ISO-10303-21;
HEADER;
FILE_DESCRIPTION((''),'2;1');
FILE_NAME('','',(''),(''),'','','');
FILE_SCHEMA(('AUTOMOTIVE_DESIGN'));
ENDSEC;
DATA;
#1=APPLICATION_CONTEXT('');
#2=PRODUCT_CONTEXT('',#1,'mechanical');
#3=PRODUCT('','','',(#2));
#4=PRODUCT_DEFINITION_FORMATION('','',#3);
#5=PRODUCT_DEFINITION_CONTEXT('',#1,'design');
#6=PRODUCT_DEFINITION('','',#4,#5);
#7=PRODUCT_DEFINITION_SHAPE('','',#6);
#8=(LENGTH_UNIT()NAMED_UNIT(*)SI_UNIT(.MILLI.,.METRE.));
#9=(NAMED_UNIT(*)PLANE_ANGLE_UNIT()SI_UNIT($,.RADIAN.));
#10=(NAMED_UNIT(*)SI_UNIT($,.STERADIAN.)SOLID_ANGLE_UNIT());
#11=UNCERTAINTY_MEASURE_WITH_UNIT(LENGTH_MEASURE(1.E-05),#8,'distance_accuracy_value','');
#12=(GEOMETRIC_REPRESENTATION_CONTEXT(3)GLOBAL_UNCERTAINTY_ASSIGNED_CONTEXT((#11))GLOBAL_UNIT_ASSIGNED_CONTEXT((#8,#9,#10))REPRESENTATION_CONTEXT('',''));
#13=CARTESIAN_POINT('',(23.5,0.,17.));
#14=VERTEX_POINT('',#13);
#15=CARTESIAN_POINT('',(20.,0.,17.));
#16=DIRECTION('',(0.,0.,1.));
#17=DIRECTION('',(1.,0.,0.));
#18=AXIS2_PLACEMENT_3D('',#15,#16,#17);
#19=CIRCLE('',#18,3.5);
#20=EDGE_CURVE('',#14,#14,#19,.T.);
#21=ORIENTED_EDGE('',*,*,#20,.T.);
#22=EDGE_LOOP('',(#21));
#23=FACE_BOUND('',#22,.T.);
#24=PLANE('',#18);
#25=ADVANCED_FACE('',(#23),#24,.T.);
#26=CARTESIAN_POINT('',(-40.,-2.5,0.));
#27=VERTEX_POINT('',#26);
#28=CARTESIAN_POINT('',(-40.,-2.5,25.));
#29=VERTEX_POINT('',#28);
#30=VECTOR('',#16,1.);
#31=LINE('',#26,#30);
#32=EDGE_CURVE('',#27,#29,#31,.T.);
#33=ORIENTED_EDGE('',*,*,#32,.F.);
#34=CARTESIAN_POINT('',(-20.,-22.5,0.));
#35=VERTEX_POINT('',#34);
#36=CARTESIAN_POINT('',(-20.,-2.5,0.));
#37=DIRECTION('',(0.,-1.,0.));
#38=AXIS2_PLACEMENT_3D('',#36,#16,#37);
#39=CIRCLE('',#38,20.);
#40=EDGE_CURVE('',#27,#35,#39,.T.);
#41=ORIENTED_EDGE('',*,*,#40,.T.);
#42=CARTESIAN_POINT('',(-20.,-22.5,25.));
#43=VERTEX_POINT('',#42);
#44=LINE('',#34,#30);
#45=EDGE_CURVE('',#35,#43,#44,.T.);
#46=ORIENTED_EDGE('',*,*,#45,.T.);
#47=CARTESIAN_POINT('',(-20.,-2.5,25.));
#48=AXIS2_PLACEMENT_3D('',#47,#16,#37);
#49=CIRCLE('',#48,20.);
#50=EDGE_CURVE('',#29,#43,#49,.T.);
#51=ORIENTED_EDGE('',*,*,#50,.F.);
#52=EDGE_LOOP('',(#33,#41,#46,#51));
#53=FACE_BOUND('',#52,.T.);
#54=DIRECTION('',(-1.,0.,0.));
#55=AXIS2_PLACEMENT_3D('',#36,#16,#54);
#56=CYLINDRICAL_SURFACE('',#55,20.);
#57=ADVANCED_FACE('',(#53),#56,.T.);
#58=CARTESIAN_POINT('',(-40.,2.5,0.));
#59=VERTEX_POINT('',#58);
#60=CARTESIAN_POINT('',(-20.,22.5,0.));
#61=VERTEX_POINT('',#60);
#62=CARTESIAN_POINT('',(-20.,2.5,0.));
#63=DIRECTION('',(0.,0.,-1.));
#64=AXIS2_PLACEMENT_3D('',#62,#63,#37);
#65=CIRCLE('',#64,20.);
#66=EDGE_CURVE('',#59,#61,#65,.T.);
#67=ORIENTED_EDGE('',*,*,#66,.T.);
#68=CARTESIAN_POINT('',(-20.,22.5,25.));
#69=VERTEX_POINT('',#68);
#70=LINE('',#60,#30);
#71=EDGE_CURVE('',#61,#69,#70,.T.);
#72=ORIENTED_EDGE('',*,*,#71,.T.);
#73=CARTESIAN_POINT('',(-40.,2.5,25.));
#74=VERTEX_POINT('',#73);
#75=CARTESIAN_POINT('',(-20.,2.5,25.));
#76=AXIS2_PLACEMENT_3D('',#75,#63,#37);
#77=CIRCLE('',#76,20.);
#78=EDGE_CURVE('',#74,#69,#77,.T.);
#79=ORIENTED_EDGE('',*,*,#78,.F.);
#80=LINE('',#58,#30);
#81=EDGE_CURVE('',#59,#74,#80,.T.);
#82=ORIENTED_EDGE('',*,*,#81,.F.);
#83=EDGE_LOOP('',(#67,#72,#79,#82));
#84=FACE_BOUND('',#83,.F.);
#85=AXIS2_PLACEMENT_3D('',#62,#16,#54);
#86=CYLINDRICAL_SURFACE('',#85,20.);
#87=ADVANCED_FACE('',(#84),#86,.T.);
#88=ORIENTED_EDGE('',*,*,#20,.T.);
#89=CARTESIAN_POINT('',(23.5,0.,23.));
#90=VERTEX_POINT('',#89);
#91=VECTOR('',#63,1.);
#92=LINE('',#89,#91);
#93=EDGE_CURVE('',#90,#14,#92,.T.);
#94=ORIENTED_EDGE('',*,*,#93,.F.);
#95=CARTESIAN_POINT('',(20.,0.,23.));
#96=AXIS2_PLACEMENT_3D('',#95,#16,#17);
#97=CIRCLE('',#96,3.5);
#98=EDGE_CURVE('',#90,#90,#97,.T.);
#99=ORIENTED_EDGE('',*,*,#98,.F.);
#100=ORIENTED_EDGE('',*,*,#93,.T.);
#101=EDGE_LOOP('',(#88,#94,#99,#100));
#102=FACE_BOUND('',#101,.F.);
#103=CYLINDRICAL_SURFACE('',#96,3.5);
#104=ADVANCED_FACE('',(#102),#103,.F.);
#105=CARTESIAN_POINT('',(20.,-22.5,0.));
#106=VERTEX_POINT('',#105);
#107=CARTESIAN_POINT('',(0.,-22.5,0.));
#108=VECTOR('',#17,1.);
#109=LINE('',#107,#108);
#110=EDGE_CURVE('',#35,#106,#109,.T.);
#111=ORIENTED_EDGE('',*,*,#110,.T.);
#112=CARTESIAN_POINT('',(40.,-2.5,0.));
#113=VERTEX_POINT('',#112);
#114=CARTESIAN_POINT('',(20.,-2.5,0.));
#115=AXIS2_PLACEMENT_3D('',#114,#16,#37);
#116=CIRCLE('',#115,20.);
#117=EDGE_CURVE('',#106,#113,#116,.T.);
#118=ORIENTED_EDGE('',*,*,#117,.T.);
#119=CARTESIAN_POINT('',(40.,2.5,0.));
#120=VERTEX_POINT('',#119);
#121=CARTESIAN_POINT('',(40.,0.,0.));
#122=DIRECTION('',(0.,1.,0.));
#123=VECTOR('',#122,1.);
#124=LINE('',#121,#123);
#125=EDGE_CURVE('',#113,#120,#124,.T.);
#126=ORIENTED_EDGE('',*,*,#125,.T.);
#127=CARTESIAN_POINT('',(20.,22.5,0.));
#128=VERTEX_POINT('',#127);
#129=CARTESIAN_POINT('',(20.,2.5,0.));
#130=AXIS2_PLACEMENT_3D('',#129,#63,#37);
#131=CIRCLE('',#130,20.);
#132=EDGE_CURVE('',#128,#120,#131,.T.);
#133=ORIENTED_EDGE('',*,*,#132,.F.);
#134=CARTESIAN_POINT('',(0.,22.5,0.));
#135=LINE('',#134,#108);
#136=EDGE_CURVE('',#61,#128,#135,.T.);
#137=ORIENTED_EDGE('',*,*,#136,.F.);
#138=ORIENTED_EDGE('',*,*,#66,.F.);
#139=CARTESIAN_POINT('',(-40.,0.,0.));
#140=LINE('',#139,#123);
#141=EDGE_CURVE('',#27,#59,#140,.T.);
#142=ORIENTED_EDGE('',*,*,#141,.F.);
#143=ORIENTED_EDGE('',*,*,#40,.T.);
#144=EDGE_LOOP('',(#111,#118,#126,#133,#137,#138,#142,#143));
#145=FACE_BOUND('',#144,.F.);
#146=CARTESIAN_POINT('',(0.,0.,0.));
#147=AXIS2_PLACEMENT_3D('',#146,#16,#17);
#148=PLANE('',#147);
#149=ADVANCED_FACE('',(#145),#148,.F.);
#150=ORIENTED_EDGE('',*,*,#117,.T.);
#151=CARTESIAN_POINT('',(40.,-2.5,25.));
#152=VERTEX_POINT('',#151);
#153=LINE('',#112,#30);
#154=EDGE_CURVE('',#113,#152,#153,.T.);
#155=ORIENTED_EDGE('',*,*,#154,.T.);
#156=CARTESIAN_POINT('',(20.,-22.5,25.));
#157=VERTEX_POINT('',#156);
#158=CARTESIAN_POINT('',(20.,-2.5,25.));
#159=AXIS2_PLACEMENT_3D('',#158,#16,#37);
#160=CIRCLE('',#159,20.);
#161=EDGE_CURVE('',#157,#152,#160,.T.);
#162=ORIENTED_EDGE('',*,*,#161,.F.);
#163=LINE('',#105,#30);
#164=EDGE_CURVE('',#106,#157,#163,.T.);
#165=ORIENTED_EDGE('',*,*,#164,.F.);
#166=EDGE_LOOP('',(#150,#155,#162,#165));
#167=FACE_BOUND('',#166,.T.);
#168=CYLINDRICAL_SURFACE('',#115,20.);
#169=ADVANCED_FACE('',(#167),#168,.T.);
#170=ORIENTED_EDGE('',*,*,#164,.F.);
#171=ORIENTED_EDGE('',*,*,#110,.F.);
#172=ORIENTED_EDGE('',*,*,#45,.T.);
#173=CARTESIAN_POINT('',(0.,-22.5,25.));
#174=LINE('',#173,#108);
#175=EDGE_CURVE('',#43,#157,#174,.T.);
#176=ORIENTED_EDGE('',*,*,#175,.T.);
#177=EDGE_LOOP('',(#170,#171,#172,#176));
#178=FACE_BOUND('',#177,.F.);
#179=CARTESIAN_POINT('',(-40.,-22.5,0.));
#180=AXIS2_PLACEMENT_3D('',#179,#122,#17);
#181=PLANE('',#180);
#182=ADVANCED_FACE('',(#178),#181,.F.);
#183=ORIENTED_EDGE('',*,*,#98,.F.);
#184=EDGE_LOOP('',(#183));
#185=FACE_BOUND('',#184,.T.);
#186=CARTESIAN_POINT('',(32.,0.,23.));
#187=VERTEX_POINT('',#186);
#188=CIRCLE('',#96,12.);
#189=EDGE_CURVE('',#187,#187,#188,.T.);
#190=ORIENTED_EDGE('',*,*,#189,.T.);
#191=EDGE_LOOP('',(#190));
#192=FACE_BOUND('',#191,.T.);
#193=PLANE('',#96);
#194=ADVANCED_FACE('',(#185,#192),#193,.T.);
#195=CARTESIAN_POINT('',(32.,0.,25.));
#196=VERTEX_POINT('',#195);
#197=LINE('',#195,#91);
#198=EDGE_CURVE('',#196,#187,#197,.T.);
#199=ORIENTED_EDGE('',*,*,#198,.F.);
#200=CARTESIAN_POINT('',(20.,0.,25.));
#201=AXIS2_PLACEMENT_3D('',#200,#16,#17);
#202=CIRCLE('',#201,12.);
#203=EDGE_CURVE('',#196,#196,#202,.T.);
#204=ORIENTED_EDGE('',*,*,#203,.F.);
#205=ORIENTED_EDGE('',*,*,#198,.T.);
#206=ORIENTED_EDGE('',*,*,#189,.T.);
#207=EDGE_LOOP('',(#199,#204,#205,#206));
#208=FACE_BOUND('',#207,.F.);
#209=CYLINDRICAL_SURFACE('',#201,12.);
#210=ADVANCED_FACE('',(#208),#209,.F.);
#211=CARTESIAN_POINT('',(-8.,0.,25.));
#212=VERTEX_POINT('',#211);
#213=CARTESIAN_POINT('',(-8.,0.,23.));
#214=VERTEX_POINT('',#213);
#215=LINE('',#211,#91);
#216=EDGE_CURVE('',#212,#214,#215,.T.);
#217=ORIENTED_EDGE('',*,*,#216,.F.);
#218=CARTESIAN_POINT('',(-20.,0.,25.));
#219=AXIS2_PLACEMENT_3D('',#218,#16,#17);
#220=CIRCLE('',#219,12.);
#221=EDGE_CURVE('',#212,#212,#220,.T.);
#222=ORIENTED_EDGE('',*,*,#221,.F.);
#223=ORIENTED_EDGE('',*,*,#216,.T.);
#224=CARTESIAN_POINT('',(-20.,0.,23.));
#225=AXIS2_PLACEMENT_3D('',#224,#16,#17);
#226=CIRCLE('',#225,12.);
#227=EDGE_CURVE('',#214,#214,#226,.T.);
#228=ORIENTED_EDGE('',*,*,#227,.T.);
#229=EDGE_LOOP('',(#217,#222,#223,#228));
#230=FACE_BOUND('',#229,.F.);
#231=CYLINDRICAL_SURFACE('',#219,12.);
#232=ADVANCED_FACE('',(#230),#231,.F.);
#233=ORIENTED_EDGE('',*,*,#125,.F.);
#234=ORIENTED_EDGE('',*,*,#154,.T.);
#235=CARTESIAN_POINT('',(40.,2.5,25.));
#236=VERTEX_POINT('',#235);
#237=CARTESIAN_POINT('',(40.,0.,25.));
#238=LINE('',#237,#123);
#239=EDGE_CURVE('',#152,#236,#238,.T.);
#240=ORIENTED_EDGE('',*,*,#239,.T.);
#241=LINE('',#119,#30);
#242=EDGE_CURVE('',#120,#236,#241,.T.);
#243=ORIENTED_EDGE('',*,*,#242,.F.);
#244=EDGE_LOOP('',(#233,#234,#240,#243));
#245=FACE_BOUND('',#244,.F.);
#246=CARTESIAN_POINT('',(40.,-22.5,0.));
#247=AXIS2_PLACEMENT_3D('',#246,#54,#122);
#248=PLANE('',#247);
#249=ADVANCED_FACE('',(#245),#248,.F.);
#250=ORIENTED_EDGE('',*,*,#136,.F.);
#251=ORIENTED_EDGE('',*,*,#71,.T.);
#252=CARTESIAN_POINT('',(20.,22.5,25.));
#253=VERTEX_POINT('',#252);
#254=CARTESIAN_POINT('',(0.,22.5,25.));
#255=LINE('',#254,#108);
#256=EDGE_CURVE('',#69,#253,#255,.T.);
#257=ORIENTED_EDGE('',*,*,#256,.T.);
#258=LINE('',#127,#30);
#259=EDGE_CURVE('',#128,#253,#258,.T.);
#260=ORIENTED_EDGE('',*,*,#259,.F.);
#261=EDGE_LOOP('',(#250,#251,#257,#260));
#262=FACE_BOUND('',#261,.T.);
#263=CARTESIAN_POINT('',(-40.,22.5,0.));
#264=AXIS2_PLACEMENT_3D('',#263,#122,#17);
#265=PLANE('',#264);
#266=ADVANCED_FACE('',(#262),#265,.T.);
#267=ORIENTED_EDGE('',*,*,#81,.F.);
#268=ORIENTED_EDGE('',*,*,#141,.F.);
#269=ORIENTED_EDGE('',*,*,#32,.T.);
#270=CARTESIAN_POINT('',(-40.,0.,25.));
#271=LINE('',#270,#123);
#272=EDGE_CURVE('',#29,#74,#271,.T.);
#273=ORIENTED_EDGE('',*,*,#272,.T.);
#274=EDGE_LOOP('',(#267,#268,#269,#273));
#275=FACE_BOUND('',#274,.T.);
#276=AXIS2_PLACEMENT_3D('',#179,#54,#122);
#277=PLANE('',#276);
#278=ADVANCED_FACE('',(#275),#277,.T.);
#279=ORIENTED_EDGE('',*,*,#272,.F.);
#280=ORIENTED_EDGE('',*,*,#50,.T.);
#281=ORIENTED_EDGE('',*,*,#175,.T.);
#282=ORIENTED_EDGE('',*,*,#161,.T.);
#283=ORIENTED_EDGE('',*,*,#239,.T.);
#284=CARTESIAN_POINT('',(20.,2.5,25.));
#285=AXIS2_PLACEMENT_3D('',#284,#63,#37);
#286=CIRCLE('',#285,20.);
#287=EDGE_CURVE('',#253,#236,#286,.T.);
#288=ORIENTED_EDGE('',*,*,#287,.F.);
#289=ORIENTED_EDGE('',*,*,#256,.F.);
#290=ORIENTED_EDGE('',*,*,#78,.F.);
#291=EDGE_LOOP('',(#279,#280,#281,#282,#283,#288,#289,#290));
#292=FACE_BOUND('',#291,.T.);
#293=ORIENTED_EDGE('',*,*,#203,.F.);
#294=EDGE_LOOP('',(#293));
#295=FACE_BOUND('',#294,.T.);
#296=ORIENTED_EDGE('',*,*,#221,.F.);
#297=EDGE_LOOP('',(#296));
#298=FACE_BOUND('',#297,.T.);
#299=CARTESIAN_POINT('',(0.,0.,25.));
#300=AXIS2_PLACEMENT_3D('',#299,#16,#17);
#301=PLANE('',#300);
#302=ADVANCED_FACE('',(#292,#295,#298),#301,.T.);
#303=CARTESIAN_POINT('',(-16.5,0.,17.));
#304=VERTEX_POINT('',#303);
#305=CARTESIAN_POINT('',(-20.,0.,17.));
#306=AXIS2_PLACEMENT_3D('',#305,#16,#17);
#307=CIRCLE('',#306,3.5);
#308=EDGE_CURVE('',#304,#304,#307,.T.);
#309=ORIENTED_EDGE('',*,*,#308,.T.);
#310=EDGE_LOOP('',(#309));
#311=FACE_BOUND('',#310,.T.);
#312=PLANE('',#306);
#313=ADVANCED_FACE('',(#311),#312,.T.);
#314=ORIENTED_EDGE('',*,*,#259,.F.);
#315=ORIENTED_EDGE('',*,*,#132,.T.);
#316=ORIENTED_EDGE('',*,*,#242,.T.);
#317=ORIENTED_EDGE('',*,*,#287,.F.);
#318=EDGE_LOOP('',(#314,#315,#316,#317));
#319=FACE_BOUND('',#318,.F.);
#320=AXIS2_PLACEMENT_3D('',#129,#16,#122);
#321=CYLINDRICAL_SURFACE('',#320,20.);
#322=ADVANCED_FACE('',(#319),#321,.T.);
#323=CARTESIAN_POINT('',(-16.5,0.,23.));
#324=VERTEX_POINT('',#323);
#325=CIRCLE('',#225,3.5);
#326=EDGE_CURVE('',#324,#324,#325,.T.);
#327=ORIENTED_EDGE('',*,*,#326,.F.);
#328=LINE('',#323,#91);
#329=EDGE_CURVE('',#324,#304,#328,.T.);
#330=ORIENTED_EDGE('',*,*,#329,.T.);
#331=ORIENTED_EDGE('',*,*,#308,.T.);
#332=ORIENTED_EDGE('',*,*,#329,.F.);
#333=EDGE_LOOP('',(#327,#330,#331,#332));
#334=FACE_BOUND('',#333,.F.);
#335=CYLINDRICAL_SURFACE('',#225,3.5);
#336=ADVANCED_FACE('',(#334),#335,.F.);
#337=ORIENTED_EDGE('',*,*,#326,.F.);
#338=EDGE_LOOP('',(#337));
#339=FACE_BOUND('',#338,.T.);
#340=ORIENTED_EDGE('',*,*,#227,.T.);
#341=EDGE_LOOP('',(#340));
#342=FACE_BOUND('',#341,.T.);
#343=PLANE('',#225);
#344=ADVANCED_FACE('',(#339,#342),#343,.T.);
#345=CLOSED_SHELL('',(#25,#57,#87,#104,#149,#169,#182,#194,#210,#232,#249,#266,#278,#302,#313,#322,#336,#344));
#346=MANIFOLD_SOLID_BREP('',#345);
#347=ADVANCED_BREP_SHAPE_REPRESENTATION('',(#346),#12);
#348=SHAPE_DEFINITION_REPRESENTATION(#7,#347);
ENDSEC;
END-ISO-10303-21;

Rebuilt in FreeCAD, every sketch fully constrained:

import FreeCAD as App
import Part
import Sketcher

V = App.Vector
Q = App.Units.Quantity


def edges_at(feature, points):
    """Names of the edges that pass closest to the given points."""
    edges = feature.Shape.Edges
    near = lambda p: min(range(len(edges)), key=lambda i: edges[i].distToShape(Part.Vertex(*p))[0])
    return sorted({f"Edge{near(p) + 1}" for p in points})

doc = App.newDocument("Part")
body = doc.addObject("PartDesign::Body", "Body")

# Sketch on XY plane
sketch1 = body.newObject("Sketcher::SketchObject", "Sketch")
sketch1.AttachmentSupport = (doc.getObject("XY_Plane"), [""])
sketch1.MapMode = "FlatFace"
sketch1.addGeometry([
    Part.LineSegment(V(-40, 22.5, 0), V(-40, -22.5, 0)),
    Part.LineSegment(V(-40, -22.5, 0), V(40, -22.5, 0)),
    Part.LineSegment(V(40, -22.5, 0), V(40, 22.5, 0)),
    Part.LineSegment(V(40, 22.5, 0), V(-40, 22.5, 0)),
], False)
sketch1.addConstraint([
    Sketcher.Constraint("Coincident", 0, 2, 1, 1),
    Sketcher.Constraint("Coincident", 1, 2, 2, 1),
    Sketcher.Constraint("Coincident", 2, 2, 3, 1),
    Sketcher.Constraint("Coincident", 3, 2, 0, 1),
    Sketcher.Constraint("Vertical", 0),
    Sketcher.Constraint("Horizontal", 1),
    Sketcher.Constraint("Vertical", 2),
    Sketcher.Constraint("Horizontal", 3),
    Sketcher.Constraint("Symmetric", 0, 2, 2, 2, -1, 1),
    Sketcher.Constraint("DistanceX", 1, 1, 1, 2, Q("80 mm")),
    Sketcher.Constraint("DistanceY", 0, 2, 0, 1, Q("45 mm")),
])
pad1 = body.newObject("PartDesign::Pad", "Pad")
pad1.Profile = sketch1
pad1.Length = 25

# Sketch on XY plane
sketch2 = body.newObject("Sketcher::SketchObject", "Sketch001")
sketch2.AttachmentSupport = (doc.getObject("XY_Plane"), [""])
sketch2.MapMode = "FlatFace"
sketch2.AttachmentOffset = App.Placement(V(0, 0, 25), App.Rotation())
sketch2.addGeometry([
    Part.Circle(V(-20, 0, 0), V(0, 0, 1), 12),
    Part.Circle(V(20, 0, 0), V(0, 0, 1), 12),
], False)
sketch2.addConstraint([
    Sketcher.Constraint("Equal", 0, 1),
    Sketcher.Constraint("Symmetric", 0, 3, 1, 3, -1, 1),
    Sketcher.Constraint("PointOnObject", 0, 3, -1),
    Sketcher.Constraint("Diameter", 0, Q("24 mm")),
    Sketcher.Constraint("DistanceX", 0, 3, -1, 1, Q("20 mm")),
])
pocket1 = body.newObject("PartDesign::Pocket", "Pocket")
pocket1.Profile = sketch2
pocket1.Length = 2

# Sketch on XY plane
sketch3 = body.newObject("Sketcher::SketchObject", "Sketch002")
sketch3.AttachmentSupport = (doc.getObject("XY_Plane"), [""])
sketch3.MapMode = "FlatFace"
sketch3.AttachmentOffset = App.Placement(V(0, 0, 23), App.Rotation())
sketch3.addGeometry([
    Part.Circle(V(-20, 0, 0), V(0, 0, 1), 3.5),
    Part.Circle(V(20, 0, 0), V(0, 0, 1), 3.5),
], False)
sketch3.addConstraint([
    Sketcher.Constraint("Equal", 0, 1),
    Sketcher.Constraint("Symmetric", 0, 3, 1, 3, -1, 1),
    Sketcher.Constraint("PointOnObject", 0, 3, -1),
    Sketcher.Constraint("Diameter", 0, Q("7 mm")),
    Sketcher.Constraint("DistanceX", 0, 3, -1, 1, Q("20 mm")),
])
pocket2 = body.newObject("PartDesign::Pocket", "Pocket001")
pocket2.Profile = sketch3
pocket2.Length = 6
doc.recompute()

fillet = body.newObject("PartDesign::Fillet", "Fillet")
fillet.Base = (pocket2, edges_at(pocket2, [
    (-40, -22.5, 12.5),
    (-40, 22.5, 12.5),
    (40, -22.5, 12.5),
    (40, 22.5, 12.5),
]))
fillet.Radius = 20

doc.recompute()
